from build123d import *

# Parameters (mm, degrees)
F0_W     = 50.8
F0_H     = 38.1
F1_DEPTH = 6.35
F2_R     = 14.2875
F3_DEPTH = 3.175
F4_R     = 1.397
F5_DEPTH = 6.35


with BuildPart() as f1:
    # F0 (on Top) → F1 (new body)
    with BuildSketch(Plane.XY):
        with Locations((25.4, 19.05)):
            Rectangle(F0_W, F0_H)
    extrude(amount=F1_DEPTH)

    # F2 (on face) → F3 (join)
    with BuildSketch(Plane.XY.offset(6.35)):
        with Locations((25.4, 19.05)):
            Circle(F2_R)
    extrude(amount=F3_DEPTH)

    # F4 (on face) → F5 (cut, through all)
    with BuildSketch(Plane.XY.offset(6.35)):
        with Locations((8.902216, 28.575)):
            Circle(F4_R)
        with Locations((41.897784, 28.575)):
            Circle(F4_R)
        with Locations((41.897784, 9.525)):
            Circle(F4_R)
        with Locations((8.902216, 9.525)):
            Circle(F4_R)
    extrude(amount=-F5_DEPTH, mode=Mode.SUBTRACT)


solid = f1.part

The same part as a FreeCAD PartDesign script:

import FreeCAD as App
import Part
import Sketcher
from FreeCAD import Vector
Q = App.Units.Quantity

doc = App.newDocument("Part")
params = doc.addObject("Spreadsheet::Sheet", "Params")
for row, (alias, value) in enumerate([
    ("sketch1_width", "2 in"),
    ("sketch1_height", "1.5 in"),
    ("pad1_length", "0.25 in"),
    ("sketch2_diameter", "1.125 in"),
    ("pad2_length", "0.125 in"),
    ("sketch3_diameter", "0.11 in"),
], start=1):
    params.set(f"A{row}", alias)
    params.set(f"B{row}", "=" + value)
    params.setAlias(f"B{row}", alias)

body = doc.addObject("PartDesign::Body", "Body")

# Sketch on XY plane
sketch1 = doc.addObject("Sketcher::SketchObject", "Sketch")
body.addObject(sketch1)
sketch1.AttachmentSupport = (doc.XY_Plane, [""])
sketch1.MapMode = "FlatFace"
sketch1.addGeometry(Part.LineSegment(Vector(0, 38, 0), Vector(0, 0, 0)), False)
sketch1.addGeometry(Part.LineSegment(Vector(0, 0, 0), Vector(51, 0, 0)), False)
sketch1.addGeometry(Part.LineSegment(Vector(51, 0, 0), Vector(51, 38, 0)), False)
sketch1.addGeometry(Part.LineSegment(Vector(51, 38, 0), Vector(0, 38, 0)), False)
sketch1.addConstraint(Sketcher.Constraint("Coincident", 0, 2, 1, 1))
sketch1.addConstraint(Sketcher.Constraint("Coincident", 1, 2, 2, 1))
sketch1.addConstraint(Sketcher.Constraint("Coincident", 2, 2, 3, 1))
sketch1.addConstraint(Sketcher.Constraint("Coincident", 3, 2, 0, 1))
sketch1.addConstraint(Sketcher.Constraint("Vertical", 0))
sketch1.addConstraint(Sketcher.Constraint("Horizontal", 1))
sketch1.addConstraint(Sketcher.Constraint("Vertical", 2))
sketch1.addConstraint(Sketcher.Constraint("Horizontal", 3))
sketch1.addConstraint(Sketcher.Constraint("Coincident", 0, 2, -1, 1))
sketch1.addConstraint(Sketcher.Constraint("DistanceX", 1, 1, 1, 2, Q("2 in")))
sketch1.addConstraint(Sketcher.Constraint("DistanceY", 0, 2, 0, 1, Q("1.5 in")))
sketch1.setExpression("Constraints[9]", "Params.sketch1_width")
sketch1.setExpression("Constraints[10]", "Params.sketch1_height")
pad1 = doc.addObject("PartDesign::Pad", "Pad")
body.addObject(pad1)
pad1.Profile = sketch1
pad1.setExpression("Length", "Params.pad1_length")

# Sketch on XY plane
sketch2 = doc.addObject("Sketcher::SketchObject", "Sketch001")
body.addObject(sketch2)
sketch2.AttachmentSupport = (doc.XY_Plane, [""])
sketch2.MapMode = "FlatFace"
sketch2.AttachmentOffset = App.Placement(Vector(0, 0, 0.25 * 25.4), App.Rotation())
sketch2.addGeometry(Part.Circle(Vector(25, 19, 0), Vector(0, 0, 1), 14), False)
sketch2.addConstraint(Sketcher.Constraint("Diameter", 0, Q("1.125 in")))
sketch2.addConstraint(Sketcher.Constraint("DistanceX", -1, 1, 0, 3, Q("1 in")))
sketch2.addConstraint(Sketcher.Constraint("DistanceY", -1, 1, 0, 3, Q("0.75 in")))
sketch2.setExpression("Constraints[0]", "Params.sketch2_diameter")
pad2 = doc.addObject("PartDesign::Pad", "Pad001")
body.addObject(pad2)
pad2.Profile = sketch2
pad2.setExpression("Length", "Params.pad2_length")

# Sketch on XY plane
sketch3 = doc.addObject("Sketcher::SketchObject", "Sketch002")
body.addObject(sketch3)
sketch3.AttachmentSupport = (doc.XY_Plane, [""])
sketch3.MapMode = "FlatFace"
sketch3.AttachmentOffset = App.Placement(Vector(0, 0, 0.25 * 25.4), App.Rotation())
sketch3.addGeometry(Part.Circle(Vector(8.9, 28.6, 0), Vector(0, 0, 1), 1.4), False)
sketch3.addGeometry(Part.Circle(Vector(41.9, 28.6, 0), Vector(0, 0, 1), 1.4), False)
sketch3.addGeometry(Part.Circle(Vector(41.9, 9.5, 0), Vector(0, 0, 1), 1.4), False)
sketch3.addGeometry(Part.Circle(Vector(8.9, 9.5, 0), Vector(0, 0, 1), 1.4), False)
sketch3.addConstraint(Sketcher.Constraint("Equal", 0, 1))
sketch3.addConstraint(Sketcher.Constraint("Equal", 1, 2))
sketch3.addConstraint(Sketcher.Constraint("Equal", 2, 3))
sketch3.addConstraint(Sketcher.Constraint("Horizontal", 0, 3, 1, 3))
sketch3.addConstraint(Sketcher.Constraint("Horizontal", 2, 3, 3, 3))
sketch3.addConstraint(Sketcher.Constraint("Vertical", 1, 3, 2, 3))
sketch3.addConstraint(Sketcher.Constraint("Vertical", 0, 3, 3, 3))
sketch3.addConstraint(Sketcher.Constraint("Diameter", 0, Q("0.11 in")))
sketch3.addConstraint(Sketcher.Constraint("DistanceY", 2, 3, 1, 3, Q("0.75 in")))
sketch3.addConstraint(Sketcher.Constraint("DistanceY", -1, 1, 0, 3, Q("1.125 in")))
sketch3.addConstraint(Sketcher.Constraint("DistanceX", 0, 3, 1, 3, Q("32.995568 mm")))
sketch3.addConstraint(Sketcher.Constraint("DistanceX", -1, 1, 0, 3, Q("8.902216 mm")))
sketch3.setExpression("Constraints[7]", "Params.sketch3_diameter")
pocket1 = doc.addObject("PartDesign::Pocket", "Pocket")
body.addObject(pocket1)
pocket1.Profile = sketch3
pocket1.Type = "ThroughAll"

doc.recompute()
